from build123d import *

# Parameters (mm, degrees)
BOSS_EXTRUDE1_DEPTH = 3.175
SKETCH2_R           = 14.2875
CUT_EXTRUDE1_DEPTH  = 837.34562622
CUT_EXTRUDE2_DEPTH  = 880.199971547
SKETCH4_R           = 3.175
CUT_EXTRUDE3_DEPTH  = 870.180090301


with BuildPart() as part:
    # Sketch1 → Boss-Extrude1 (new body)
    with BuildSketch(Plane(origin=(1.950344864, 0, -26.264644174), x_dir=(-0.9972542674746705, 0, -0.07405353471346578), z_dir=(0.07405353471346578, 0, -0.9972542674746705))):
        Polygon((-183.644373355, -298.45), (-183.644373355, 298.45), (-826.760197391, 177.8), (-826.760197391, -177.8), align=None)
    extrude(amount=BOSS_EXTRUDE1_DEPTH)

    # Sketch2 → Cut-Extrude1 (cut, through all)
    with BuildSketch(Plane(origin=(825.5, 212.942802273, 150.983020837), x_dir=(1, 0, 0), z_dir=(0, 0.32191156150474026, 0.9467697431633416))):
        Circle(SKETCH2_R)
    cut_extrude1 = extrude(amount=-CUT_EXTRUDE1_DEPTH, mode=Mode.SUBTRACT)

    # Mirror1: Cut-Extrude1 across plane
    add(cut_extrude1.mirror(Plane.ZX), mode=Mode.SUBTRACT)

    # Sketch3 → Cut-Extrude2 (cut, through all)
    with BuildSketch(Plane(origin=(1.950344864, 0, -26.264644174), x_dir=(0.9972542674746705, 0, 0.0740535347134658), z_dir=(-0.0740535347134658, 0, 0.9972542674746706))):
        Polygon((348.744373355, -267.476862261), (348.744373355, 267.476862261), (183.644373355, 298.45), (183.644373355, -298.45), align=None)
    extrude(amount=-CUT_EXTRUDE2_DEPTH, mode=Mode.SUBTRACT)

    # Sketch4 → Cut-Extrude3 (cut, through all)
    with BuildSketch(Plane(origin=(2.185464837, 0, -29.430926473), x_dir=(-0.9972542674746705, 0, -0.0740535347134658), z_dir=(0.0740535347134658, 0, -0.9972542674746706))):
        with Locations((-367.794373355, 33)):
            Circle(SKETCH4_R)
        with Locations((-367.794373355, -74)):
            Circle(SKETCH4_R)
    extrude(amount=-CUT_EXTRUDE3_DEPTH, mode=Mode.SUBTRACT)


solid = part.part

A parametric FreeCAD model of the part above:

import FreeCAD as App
import Part
import Sketcher
Q = App.Units.Quantity

doc = App.newDocument("Part")
body = doc.addObject("PartDesign::Body", "Body")

# Sketch on an angled plane
sketch1 = doc.addObject("Sketcher::SketchObject", "Sketch")
body.addObject(sketch1)
sketch1.Placement = App.Placement(App.Vector(1.950345, 0, -26.264644), App.Rotation(App.Vector(-0.997254267, 0, -0.074053535), App.Vector(0, 0.999999999, 0), App.Vector(0.074053535, 0, -0.997254267), "ZXY"))
sketch1.addGeometry(Part.LineSegment(App.Vector(-184, -298, 0), App.Vector(-184, 298, 0)), False)
sketch1.addGeometry(Part.LineSegment(App.Vector(-184, 298, 0), App.Vector(-827, 178, 0)), False)
sketch1.addGeometry(Part.LineSegment(App.Vector(-827, 178, 0), App.Vector(-827, -178, 0)), False)
sketch1.addGeometry(Part.LineSegment(App.Vector(-827, -178, 0), App.Vector(-184, -298, 0)), False)
sketch1.addConstraint(Sketcher.Constraint("Coincident", 0, 2, 1, 1))
sketch1.addConstraint(Sketcher.Constraint("Coincident", 1, 2, 2, 1))
sketch1.addConstraint(Sketcher.Constraint("Coincident", 2, 2, 3, 1))
sketch1.addConstraint(Sketcher.Constraint("Coincident", 3, 2, 0, 1))
sketch1.addConstraint(Sketcher.Constraint("Vertical", 0))
sketch1.addConstraint(Sketcher.Constraint("Vertical", 2))
sketch1.addConstraint(Sketcher.Constraint("Equal", 1, 3))
sketch1.addConstraint(Sketcher.Constraint("DistanceY", 2, 2, 2, 1, Q("14 in")))
sketch1.addConstraint(Sketcher.Constraint("DistanceY", 0, 1, 0, 2, Q("23.5 in")))
sketch1.addConstraint(Sketcher.Constraint("DistanceY", -1, 1, 1, 2, Q("7 in")))
sketch1.addConstraint(Sketcher.Constraint("Distance", 1, 654.335071))
sketch1.addConstraint(Sketcher.Constraint("DistanceX", 0, 2, -1, 1, 183.644373))
pad1 = doc.addObject("PartDesign::Pad", "Pad")
body.addObject(pad1)
pad1.Profile = sketch1
pad1.Length = Q("0.125 in")

# Sketch on an angled plane
sketch2 = doc.addObject("Sketcher::SketchObject", "Sketch001")
body.addObject(sketch2)
sketch2.Placement = App.Placement(App.Vector(825.5, 212.942802, 150.983021), App.Rotation(App.Vector(1, 0, 0), App.Vector(0, 0.946769743, -0.321911562), App.Vector(0, 0.321911562, 0.946769743), "ZXY"))
sketch2.addGeometry(Part.Circle(App.Vector(0, 0, 0), App.Vector(0, 0, 1), 14), False)
sketch2.addConstraint(Sketcher.Constraint("Coincident", 0, 3, -1, 1))
sketch2.addConstraint(Sketcher.Constraint("Diameter", 0, Q("1.125 in")))
pocket1 = doc.addObject("PartDesign::Pocket", "Pocket")
body.addObject(pocket1)
pocket1.Profile = sketch2
pocket1.Type = "ThroughAll"
doc.recompute()

mirrored = doc.addObject("PartDesign::Mirrored", "Mirrored")
body.addObject(mirrored)
mirrored.Originals = [pocket1]
mirrored.MirrorPlane = (doc.XZ_Plane, [""])
body.Tip = mirrored

# Sketch on an angled plane
sketch3 = doc.addObject("Sketcher::SketchObject", "Sketch002")
body.addObject(sketch3)
sketch3.Placement = App.Placement(App.Vector(1.950345, 0, -26.264644), App.Rotation(App.Vector(0.997254267, 0, 0.074053535), App.Vector(0, 0.999999999, 0), App.Vector(-0.074053535, 0, 0.997254267), "ZXY"))
sketch3.addGeometry(Part.LineSegment(App.Vector(349, -267, 0), App.Vector(349, 267, 0)), False)
sketch3.addGeometry(Part.LineSegment(App.Vector(349, 267, 0), App.Vector(184, 298, 0)), False)
sketch3.addGeometry(Part.LineSegment(App.Vector(184, 298, 0), App.Vector(184, -298, 0)), False)
sketch3.addGeometry(Part.LineSegment(App.Vector(184, -298, 0), App.Vector(349, -267, 0)), False)
sketch3.addConstraint(Sketcher.Constraint("Coincident", 0, 2, 1, 1))
sketch3.addConstraint(Sketcher.Constraint("Coincident", 1, 2, 2, 1))
sketch3.addConstraint(Sketcher.Constraint("Coincident", 2, 2, 3, 1))
sketch3.addConstraint(Sketcher.Constraint("Coincident", 3, 2, 0, 1))
sketch3.addConstraint(Sketcher.Constraint("Vertical", 0))
sketch3.addConstraint(Sketcher.Constraint("Vertical", 2))
sketch3.addConstraint(Sketcher.Constraint("Equal", 1, 3))
sketch3.addConstraint(Sketcher.Constraint("DistanceY", 2, 2, 2, 1, Q("23.5 in")))
sketch3.addConstraint(Sketcher.Constraint("DistanceX", 1, 2, 0, 2, Q("6.5 in")))
sketch3.addConstraint(Sketcher.Constraint("DistanceY", -1, 1, 1, 2, Q("11.75 in")))
sketch3.addConstraint(Sketcher.Constraint("DistanceY", 0, 1, 0, 2, 534.953724))
sketch3.addConstraint(Sketcher.Constraint("DistanceX", -1, 1, 0, 2, 348.744373))
pocket2 = doc.addObject("PartDesign::Pocket", "Pocket001")
body.addObject(pocket2)
pocket2.Profile = sketch3
pocket2.Type = "ThroughAll"

# Sketch on an angled plane
sketch4 = doc.addObject("Sketcher::SketchObject", "Sketch003")
body.addObject(sketch4)
sketch4.Placement = App.Placement(App.Vector(2.185465, 0, -29.430926), App.Rotation(App.Vector(-0.997254267, 0, -0.074053535), App.Vector(0, 0.999999999, 0), App.Vector(0.074053535, 0, -0.997254267), "ZXY"))
sketch4.addGeometry(Part.Circle(App.Vector(-367.8, 33, 0), App.Vector(0, 0, 1), 3.2), False)
sketch4.addGeometry(Part.Circle(App.Vector(-367.8, -74, 0), App.Vector(0, 0, 1), 3.2), False)
sketch4.addConstraint(Sketcher.Constraint("Equal", 0, 1))
sketch4.addConstraint(Sketcher.Constraint("Vertical", 0, 3, 1, 3))
sketch4.addConstraint(Sketcher.Constraint("Diameter", 0, Q("0.25 in")))
sketch4.addConstraint(Sketcher.Constraint("DistanceY", -1, 1, 0, 3, 33.0))
sketch4.addConstraint(Sketcher.Constraint("DistanceY", 1, 3, -1, 1, 74.0))
sketch4.addConstraint(Sketcher.Constraint("DistanceX", 0, 3, -1, 1, 367.794373))
pocket3 = doc.addObject("PartDesign::Pocket", "Pocket002")
body.addObject(pocket3)
pocket3.Profile = sketch4
pocket3.Type = "ThroughAll"

doc.recompute()
